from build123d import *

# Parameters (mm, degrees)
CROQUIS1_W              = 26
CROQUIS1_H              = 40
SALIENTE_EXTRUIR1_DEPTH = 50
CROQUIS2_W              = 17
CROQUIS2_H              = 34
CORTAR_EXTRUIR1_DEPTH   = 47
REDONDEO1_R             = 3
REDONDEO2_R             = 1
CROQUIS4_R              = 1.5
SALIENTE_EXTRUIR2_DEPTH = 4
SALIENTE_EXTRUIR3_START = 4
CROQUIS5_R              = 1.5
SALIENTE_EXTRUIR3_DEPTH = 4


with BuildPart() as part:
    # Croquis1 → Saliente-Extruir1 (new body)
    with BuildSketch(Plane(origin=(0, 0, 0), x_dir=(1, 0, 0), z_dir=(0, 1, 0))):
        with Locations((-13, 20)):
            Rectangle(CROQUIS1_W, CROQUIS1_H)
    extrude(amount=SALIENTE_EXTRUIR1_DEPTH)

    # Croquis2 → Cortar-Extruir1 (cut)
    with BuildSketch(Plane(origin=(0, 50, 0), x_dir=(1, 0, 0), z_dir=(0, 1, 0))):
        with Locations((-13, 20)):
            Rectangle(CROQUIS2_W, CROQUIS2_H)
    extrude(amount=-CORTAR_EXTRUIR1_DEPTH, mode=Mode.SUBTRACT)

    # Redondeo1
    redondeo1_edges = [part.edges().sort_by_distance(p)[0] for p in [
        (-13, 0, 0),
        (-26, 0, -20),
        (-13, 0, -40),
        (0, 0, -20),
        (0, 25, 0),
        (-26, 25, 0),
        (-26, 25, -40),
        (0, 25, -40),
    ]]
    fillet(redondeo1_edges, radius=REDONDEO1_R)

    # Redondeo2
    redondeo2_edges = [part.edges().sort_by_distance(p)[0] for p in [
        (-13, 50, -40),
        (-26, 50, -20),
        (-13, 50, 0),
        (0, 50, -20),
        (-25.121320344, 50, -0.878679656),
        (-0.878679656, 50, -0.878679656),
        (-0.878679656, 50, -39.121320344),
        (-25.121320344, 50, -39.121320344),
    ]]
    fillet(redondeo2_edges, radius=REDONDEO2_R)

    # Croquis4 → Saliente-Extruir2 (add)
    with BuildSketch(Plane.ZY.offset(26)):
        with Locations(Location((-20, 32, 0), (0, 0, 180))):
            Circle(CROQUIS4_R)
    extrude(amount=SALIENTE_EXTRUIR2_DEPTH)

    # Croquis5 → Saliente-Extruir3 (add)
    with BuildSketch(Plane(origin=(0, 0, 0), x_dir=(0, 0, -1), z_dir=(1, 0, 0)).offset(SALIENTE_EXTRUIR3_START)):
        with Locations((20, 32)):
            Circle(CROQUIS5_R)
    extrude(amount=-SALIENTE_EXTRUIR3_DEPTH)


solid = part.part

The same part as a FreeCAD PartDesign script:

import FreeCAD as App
import Part
import Sketcher

V = App.Vector
Q = App.Units.Quantity


def edges_at(feature, points):
    """Names of the edges that pass closest to the given points."""
    edges = feature.Shape.Edges
    near = lambda p: min(range(len(edges)), key=lambda i: edges[i].distToShape(Part.Vertex(*p))[0])
    return sorted({f"Edge{near(p) + 1}" for p in points})

doc = App.newDocument("Part")
params = doc.addObject("Spreadsheet::Sheet", "Params")
for row, (alias, value) in enumerate([
    ("sketch1_width", "26 mm"),
    ("sketch1_height", "40 mm"),
    ("pad1_length", "50 mm"),
    ("sketch2_width", "17 mm"),
    ("sketch2_height", "34 mm"),
    ("pocket1_length", "47 mm"),
    ("fillet_radius", "3 mm"),
    ("fillet2_radius", "1 mm"),
    ("sketch3_diameter", "3 mm"),
    ("pad2_length", "4 mm"),
    ("sketch4_diameter", "3 mm"),
    ("pad3_length", "4 mm"),
], start=1):
    params.set(f"A{row}", alias)
    params.set(f"B{row}", "=" + value)
    params.setAlias(f"B{row}", alias)

body = doc.addObject("PartDesign::Body", "Body")

# Sketch on XZ plane
sketch1 = doc.addObject("Sketcher::SketchObject", "Sketch")
body.addObject(sketch1)
sketch1.AttachmentSupport = (doc.XZ_Plane, [""])
sketch1.MapMode = "FlatFace"
sketch1.addGeometry([
    Part.LineSegment(V(-26, -40, 0), V(-26, 0, 0)),
    Part.LineSegment(V(-26, 0, 0), V(0, 0, 0)),
    Part.LineSegment(V(0, 0, 0), V(0, -40, 0)),
    Part.LineSegment(V(0, -40, 0), V(-26, -40, 0)),
], False)
sketch1.addConstraint([
    Sketcher.Constraint("Coincident", 0, 2, 1, 1),
    Sketcher.Constraint("Coincident", 1, 2, 2, 1),
    Sketcher.Constraint("Coincident", 2, 2, 3, 1),
    Sketcher.Constraint("Coincident", 3, 2, 0, 1),
    Sketcher.Constraint("Vertical", 0),
    Sketcher.Constraint("Horizontal", 1),
    Sketcher.Constraint("Vertical", 2),
    Sketcher.Constraint("Horizontal", 3),
    Sketcher.Constraint("Coincident", 1, 2, -1, 1),
    Sketcher.Constraint("DistanceX", 1, 1, 1, 2, Q("26 mm")),
    Sketcher.Constraint("DistanceY", 0, 1, 0, 2, Q("40 mm")),
])
sketch1.setExpression("Constraints[9]", "Params.sketch1_width")
sketch1.setExpression("Constraints[10]", "Params.sketch1_height")
pad1 = doc.addObject("PartDesign::Pad", "Pad")
body.addObject(pad1)
pad1.Profile = sketch1
pad1.setExpression("Length", "Params.pad1_length")
pad1.Reversed = True

# Sketch on XZ plane
sketch2 = doc.addObject("Sketcher::SketchObject", "Sketch001")
body.addObject(sketch2)
sketch2.AttachmentSupport = (doc.XZ_Plane, [""])
sketch2.MapMode = "FlatFace"
sketch2.AttachmentOffset = App.Placement(V(0, 0, -50), App.Rotation())
sketch2.addGeometry([
    Part.LineSegment(V(-22, -37, 0), V(-22, -3, 0)),
    Part.LineSegment(V(-22, -3, 0), V(-4, -3, 0)),
    Part.LineSegment(V(-4, -3, 0), V(-4, -37, 0)),
    Part.LineSegment(V(-4, -37, 0), V(-22, -37, 0)),
], False)
sketch2.addConstraint([
    Sketcher.Constraint("Coincident", 0, 2, 1, 1),
    Sketcher.Constraint("Coincident", 1, 2, 2, 1),
    Sketcher.Constraint("Coincident", 2, 2, 3, 1),
    Sketcher.Constraint("Coincident", 3, 2, 0, 1),
    Sketcher.Constraint("Vertical", 0),
    Sketcher.Constraint("Horizontal", 1),
    Sketcher.Constraint("Vertical", 2),
    Sketcher.Constraint("Horizontal", 3),
    Sketcher.Constraint("DistanceX", 1, 1, 1, 2, Q("17 mm")),
    Sketcher.Constraint("DistanceY", 0, 1, 0, 2, Q("34 mm")),
    Sketcher.Constraint("DistanceY", 0, 2, -1, 1, Q("3 mm")),
    Sketcher.Constraint("DistanceX", 0, 2, -1, 1, Q("21.5 mm")),
])
sketch2.setExpression("Constraints[8]", "Params.sketch2_width")
sketch2.setExpression("Constraints[9]", "Params.sketch2_height")
pocket1 = doc.addObject("PartDesign::Pocket", "Pocket")
body.addObject(pocket1)
pocket1.Profile = sketch2
pocket1.setExpression("Length", "Params.pocket1_length")
pocket1.Reversed = True
doc.recompute()

fillet = doc.addObject("PartDesign::Fillet", "Fillet")
body.addObject(fillet)
fillet.Base = (pocket1, edges_at(pocket1, [
    (-13, 0, 0),
    (-26, 0, -20),
    (-13, 0, -40),
    (0, 0, -20),
    (0, 25, 0),
    (-26, 25, 0),
    (-26, 25, -40),
    (0, 25, -40),
]))
fillet.setExpression("Radius", "Params.fillet_radius")
doc.recompute()

fillet2 = doc.addObject("PartDesign::Fillet", "Fillet001")
body.addObject(fillet2)
fillet2.Base = (fillet, edges_at(fillet, [
    (-13, 50, -40),
    (-26, 50, -20),
    (-13, 50, 0),
    (0, 50, -20),
    (-25.121, 50, -0.879),
    (-0.879, 50, -0.879),
    (-0.879, 50, -39.121),
    (-25.121, 50, -39.121),
]))
fillet2.setExpression("Radius", "Params.fillet2_radius")

# Sketch on YZ plane
sketch3 = doc.addObject("Sketcher::SketchObject", "Sketch002")
body.addObject(sketch3)
sketch3.AttachmentSupport = (doc.YZ_Plane, [""])
sketch3.MapMode = "FlatFace"
sketch3.AttachmentOffset = App.Placement(V(0, 0, -26), App.Rotation())
sketch3.addGeometry(Part.Circle(V(32, -20, 0), V(0, 0, 1), 1.5), False)
sketch3.addConstraint([
    Sketcher.Constraint("Diameter", 0, Q("3 mm")),
    Sketcher.Constraint("DistanceX", -1, 1, 0, 3, Q("32 mm")),
    Sketcher.Constraint("DistanceY", 0, 3, -1, 1, Q("20 mm")),
])
sketch3.setExpression("Constraints[0]", "Params.sketch3_diameter")
pad2 = doc.addObject("PartDesign::Pad", "Pad001")
body.addObject(pad2)
pad2.Profile = sketch3
pad2.setExpression("Length", "Params.pad2_length")
pad2.Reversed = True

# Sketch on YZ plane
sketch4 = doc.addObject("Sketcher::SketchObject", "Sketch003")
body.addObject(sketch4)
sketch4.AttachmentSupport = (doc.YZ_Plane, [""])
sketch4.MapMode = "FlatFace"
sketch4.AttachmentOffset = App.Placement(V(0, 0, 4), App.Rotation())
sketch4.addGeometry(Part.Circle(V(32, -20, 0), V(0, 0, 1), 1.5), False)
sketch4.addConstraint([
    Sketcher.Constraint("Diameter", 0, Q("3 mm")),
    Sketcher.Constraint("DistanceX", -1, 1, 0, 3, Q("32 mm")),
    Sketcher.Constraint("DistanceY", 0, 3, -1, 1, Q("20 mm")),
])
sketch4.setExpression("Constraints[0]", "Params.sketch4_diameter")
pad3 = doc.addObject("PartDesign::Pad", "Pad002")
body.addObject(pad3)
pad3.Profile = sketch4
pad3.setExpression("Length", "Params.pad3_length")
pad3.Reversed = True

doc.recompute()
